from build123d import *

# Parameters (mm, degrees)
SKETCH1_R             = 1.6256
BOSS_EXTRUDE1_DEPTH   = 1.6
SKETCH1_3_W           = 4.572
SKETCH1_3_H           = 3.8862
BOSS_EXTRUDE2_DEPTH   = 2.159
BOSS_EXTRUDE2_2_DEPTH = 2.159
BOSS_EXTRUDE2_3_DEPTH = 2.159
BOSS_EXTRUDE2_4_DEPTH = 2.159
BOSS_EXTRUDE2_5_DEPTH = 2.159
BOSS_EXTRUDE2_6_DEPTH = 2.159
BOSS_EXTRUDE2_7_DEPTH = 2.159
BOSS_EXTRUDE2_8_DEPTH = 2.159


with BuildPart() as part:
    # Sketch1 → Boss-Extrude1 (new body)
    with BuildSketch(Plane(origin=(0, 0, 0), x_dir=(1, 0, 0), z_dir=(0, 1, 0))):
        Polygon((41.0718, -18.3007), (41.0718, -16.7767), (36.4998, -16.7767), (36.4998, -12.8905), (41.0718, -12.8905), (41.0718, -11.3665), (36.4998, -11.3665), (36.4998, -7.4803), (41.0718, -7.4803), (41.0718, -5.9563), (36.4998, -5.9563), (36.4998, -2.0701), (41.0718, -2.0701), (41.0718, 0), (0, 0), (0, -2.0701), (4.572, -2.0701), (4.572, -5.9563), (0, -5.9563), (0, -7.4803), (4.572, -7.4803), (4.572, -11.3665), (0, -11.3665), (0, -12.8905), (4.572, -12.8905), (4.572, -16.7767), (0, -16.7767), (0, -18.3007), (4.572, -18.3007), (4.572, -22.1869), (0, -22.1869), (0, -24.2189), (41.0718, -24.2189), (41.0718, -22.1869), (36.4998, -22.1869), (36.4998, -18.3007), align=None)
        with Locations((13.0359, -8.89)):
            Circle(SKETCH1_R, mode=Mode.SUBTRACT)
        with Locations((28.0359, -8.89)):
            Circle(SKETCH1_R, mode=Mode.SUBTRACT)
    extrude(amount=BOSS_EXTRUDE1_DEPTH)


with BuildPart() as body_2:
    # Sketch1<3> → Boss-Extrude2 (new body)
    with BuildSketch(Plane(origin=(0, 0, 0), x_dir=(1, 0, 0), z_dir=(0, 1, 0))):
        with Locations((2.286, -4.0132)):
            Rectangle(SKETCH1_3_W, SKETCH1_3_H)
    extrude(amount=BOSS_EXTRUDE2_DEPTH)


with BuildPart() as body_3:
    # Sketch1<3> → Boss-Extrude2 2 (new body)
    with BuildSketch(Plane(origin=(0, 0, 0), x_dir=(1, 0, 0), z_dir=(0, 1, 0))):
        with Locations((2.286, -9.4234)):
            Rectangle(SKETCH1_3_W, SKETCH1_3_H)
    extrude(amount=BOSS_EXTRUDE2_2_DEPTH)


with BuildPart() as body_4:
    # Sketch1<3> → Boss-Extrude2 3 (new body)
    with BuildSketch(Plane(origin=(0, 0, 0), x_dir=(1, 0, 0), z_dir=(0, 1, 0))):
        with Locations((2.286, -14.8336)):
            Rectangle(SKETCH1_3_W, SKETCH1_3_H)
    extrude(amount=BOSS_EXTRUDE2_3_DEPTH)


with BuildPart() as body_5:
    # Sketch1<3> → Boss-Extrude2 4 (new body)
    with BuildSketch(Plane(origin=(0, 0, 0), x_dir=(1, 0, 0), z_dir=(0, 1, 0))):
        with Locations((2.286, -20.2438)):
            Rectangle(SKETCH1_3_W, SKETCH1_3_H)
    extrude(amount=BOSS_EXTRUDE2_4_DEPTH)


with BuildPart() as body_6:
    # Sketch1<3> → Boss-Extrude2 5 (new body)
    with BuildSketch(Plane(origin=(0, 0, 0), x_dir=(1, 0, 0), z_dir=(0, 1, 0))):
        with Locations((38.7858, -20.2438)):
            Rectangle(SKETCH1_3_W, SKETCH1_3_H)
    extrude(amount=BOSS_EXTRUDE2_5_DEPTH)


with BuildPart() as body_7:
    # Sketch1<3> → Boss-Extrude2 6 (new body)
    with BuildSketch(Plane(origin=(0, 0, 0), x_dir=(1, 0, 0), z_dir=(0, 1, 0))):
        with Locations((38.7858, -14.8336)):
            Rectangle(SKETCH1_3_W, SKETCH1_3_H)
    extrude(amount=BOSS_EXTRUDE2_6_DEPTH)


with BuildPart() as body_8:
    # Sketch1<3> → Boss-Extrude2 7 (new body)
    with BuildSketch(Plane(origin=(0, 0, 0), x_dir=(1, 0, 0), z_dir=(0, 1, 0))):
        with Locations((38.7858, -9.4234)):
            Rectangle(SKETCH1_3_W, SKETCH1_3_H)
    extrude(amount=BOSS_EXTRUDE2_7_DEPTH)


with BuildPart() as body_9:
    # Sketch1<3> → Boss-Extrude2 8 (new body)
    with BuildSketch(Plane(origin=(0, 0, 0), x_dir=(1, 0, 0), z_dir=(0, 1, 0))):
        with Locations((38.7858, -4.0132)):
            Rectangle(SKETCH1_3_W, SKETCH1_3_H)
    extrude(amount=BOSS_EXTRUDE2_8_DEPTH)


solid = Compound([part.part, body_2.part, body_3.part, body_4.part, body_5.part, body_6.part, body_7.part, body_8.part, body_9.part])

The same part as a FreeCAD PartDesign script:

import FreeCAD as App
import Part
import Sketcher
Q = App.Units.Quantity

doc = App.newDocument("Part")
body = doc.addObject("PartDesign::Body", "Body")

# Sketch on XZ plane
sketch1 = body.newObject("Sketcher::SketchObject", "Sketch")
sketch1.AttachmentSupport = (doc.getObject("XZ_Plane"), [""])
sketch1.MapMode = "FlatFace"
sketch1.addGeometry([
    Part.LineSegment(App.Vector(41.0718, 18.3007, 0), App.Vector(41.0718, 16.7767, 0)),  # 0
    Part.LineSegment(App.Vector(41.0718, 16.7767, 0), App.Vector(36.4998, 16.7767, 0)),  # 1
    Part.LineSegment(App.Vector(36.4998, 16.7767, 0), App.Vector(36.4998, 12.8905, 0)),  # 2
    Part.LineSegment(App.Vector(36.4998, 12.8905, 0), App.Vector(41.0718, 12.8905, 0)),  # 3
    Part.LineSegment(App.Vector(41.0718, 12.8905, 0), App.Vector(41.0718, 11.3665, 0)),  # 4
    Part.LineSegment(App.Vector(41.0718, 11.3665, 0), App.Vector(36.4998, 11.3665, 0)),  # 5
    Part.LineSegment(App.Vector(36.4998, 11.3665, 0), App.Vector(36.4998, 7.4803, 0)),  # 6
    Part.LineSegment(App.Vector(36.4998, 7.4803, 0), App.Vector(41.0718, 7.4803, 0)),  # 7
    Part.LineSegment(App.Vector(41.0718, 7.4803, 0), App.Vector(41.0718, 5.9563, 0)),  # 8
    Part.LineSegment(App.Vector(41.0718, 5.9563, 0), App.Vector(36.4998, 5.9563, 0)),  # 9
    Part.LineSegment(App.Vector(36.4998, 5.9563, 0), App.Vector(36.4998, 2.0701, 0)),  # 10
    Part.LineSegment(App.Vector(36.4998, 2.0701, 0), App.Vector(41.0718, 2.0701, 0)),  # 11
    Part.LineSegment(App.Vector(41.0718, 2.0701, 0), App.Vector(41.0718, 0, 0)),  # 12
    Part.LineSegment(App.Vector(41.0718, 0, 0), App.Vector(0, 0, 0)),  # 13
    Part.LineSegment(App.Vector(0, 0, 0), App.Vector(0, 2.0701, 0)),  # 14
    Part.LineSegment(App.Vector(0, 2.0701, 0), App.Vector(4.572, 2.0701, 0)),  # 15
    Part.LineSegment(App.Vector(4.572, 2.0701, 0), App.Vector(4.572, 5.9563, 0)),  # 16
    Part.LineSegment(App.Vector(4.572, 5.9563, 0), App.Vector(0, 5.9563, 0)),  # 17
    Part.LineSegment(App.Vector(0, 5.9563, 0), App.Vector(0, 7.4803, 0)),  # 18
    Part.LineSegment(App.Vector(0, 7.4803, 0), App.Vector(4.572, 7.4803, 0)),  # 19
    Part.LineSegment(App.Vector(4.572, 7.4803, 0), App.Vector(4.572, 11.3665, 0)),  # 20
    Part.LineSegment(App.Vector(4.572, 11.3665, 0), App.Vector(0, 11.3665, 0)),  # 21
    Part.LineSegment(App.Vector(0, 11.3665, 0), App.Vector(0, 12.8905, 0)),  # 22
    Part.LineSegment(App.Vector(0, 12.8905, 0), App.Vector(4.572, 12.8905, 0)),  # 23
    Part.LineSegment(App.Vector(4.572, 12.8905, 0), App.Vector(4.572, 16.7767, 0)),  # 24
    Part.LineSegment(App.Vector(4.572, 16.7767, 0), App.Vector(0, 16.7767, 0)),  # 25
    Part.LineSegment(App.Vector(0, 16.7767, 0), App.Vector(0, 18.3007, 0)),  # 26
    Part.LineSegment(App.Vector(0, 18.3007, 0), App.Vector(4.572, 18.3007, 0)),  # 27
    Part.LineSegment(App.Vector(4.572, 18.3007, 0), App.Vector(4.572, 22.1869, 0)),  # 28
    Part.LineSegment(App.Vector(4.572, 22.1869, 0), App.Vector(0, 22.1869, 0)),  # 29
    Part.LineSegment(App.Vector(0, 22.1869, 0), App.Vector(0, 24.2189, 0)),  # 30
    Part.LineSegment(App.Vector(0, 24.2189, 0), App.Vector(41.0718, 24.2189, 0)),  # 31
    Part.LineSegment(App.Vector(41.0718, 24.2189, 0), App.Vector(41.0718, 22.1869, 0)),  # 32
    Part.LineSegment(App.Vector(41.0718, 22.1869, 0), App.Vector(36.4998, 22.1869, 0)),  # 33
    Part.LineSegment(App.Vector(36.4998, 22.1869, 0), App.Vector(36.4998, 18.3007, 0)),  # 34
    Part.LineSegment(App.Vector(36.4998, 18.3007, 0), App.Vector(41.0718, 18.3007, 0)),  # 35
    Part.Circle(App.Vector(13.0359, 8.89, 0), App.Vector(0, 0, 1), 1.6256),  # 36
    Part.Circle(App.Vector(28.0359, 8.89, 0), App.Vector(0, 0, 1), 1.6256),  # 37
], False)
sketch1.addConstraint([
    Sketcher.Constraint("Coincident", 0, 2, 1, 1),
    Sketcher.Constraint("Coincident", 1, 2, 2, 1),
    Sketcher.Constraint("Coincident", 2, 2, 3, 1),
    Sketcher.Constraint("Coincident", 3, 2, 4, 1),
    Sketcher.Constraint("Coincident", 4, 2, 5, 1),
    Sketcher.Constraint("Coincident", 5, 2, 6, 1),
    Sketcher.Constraint("Coincident", 6, 2, 7, 1),
    Sketcher.Constraint("Coincident", 7, 2, 8, 1),
    Sketcher.Constraint("Coincident", 8, 2, 9, 1),
    Sketcher.Constraint("Coincident", 9, 2, 10, 1),
    Sketcher.Constraint("Coincident", 10, 2, 11, 1),
    Sketcher.Constraint("Coincident", 11, 2, 12, 1),
    Sketcher.Constraint("Coincident", 12, 2, 13, 1),
    Sketcher.Constraint("Coincident", 13, 2, 14, 1),
    Sketcher.Constraint("Coincident", 14, 2, 15, 1),
    Sketcher.Constraint("Coincident", 15, 2, 16, 1),
    Sketcher.Constraint("Coincident", 16, 2, 17, 1),
    Sketcher.Constraint("Coincident", 17, 2, 18, 1),
    Sketcher.Constraint("Coincident", 18, 2, 19, 1),
    Sketcher.Constraint("Coincident", 19, 2, 20, 1),
    Sketcher.Constraint("Coincident", 20, 2, 21, 1),
    Sketcher.Constraint("Coincident", 21, 2, 22, 1),
    Sketcher.Constraint("Coincident", 22, 2, 23, 1),
    Sketcher.Constraint("Coincident", 23, 2, 24, 1),
    Sketcher.Constraint("Coincident", 24, 2, 25, 1),
    Sketcher.Constraint("Coincident", 25, 2, 26, 1),
    Sketcher.Constraint("Coincident", 26, 2, 27, 1),
    Sketcher.Constraint("Coincident", 27, 2, 28, 1),
    Sketcher.Constraint("Coincident", 28, 2, 29, 1),
    Sketcher.Constraint("Coincident", 29, 2, 30, 1),
    Sketcher.Constraint("Coincident", 30, 2, 31, 1),
    Sketcher.Constraint("Coincident", 31, 2, 32, 1),
    Sketcher.Constraint("Coincident", 32, 2, 33, 1),
    Sketcher.Constraint("Coincident", 33, 2, 34, 1),
    Sketcher.Constraint("Coincident", 34, 2, 35, 1),
    Sketcher.Constraint("Coincident", 35, 2, 0, 1),
    Sketcher.Constraint("Vertical", 0),
    Sketcher.Constraint("Horizontal", 1),
    Sketcher.Constraint("Vertical", 2),
    Sketcher.Constraint("Horizontal", 3),
    Sketcher.Constraint("Vertical", 4),
    Sketcher.Constraint("Horizontal", 5),
    Sketcher.Constraint("Vertical", 6),
    Sketcher.Constraint("Horizontal", 7),
    Sketcher.Constraint("Vertical", 8),
    Sketcher.Constraint("Horizontal", 9),
    Sketcher.Constraint("Vertical", 10),
    Sketcher.Constraint("Horizontal", 11),
    Sketcher.Constraint("Vertical", 12),
    Sketcher.Constraint("Horizontal", 13),
    Sketcher.Constraint("Vertical", 14),
    Sketcher.Constraint("Horizontal", 15),
    Sketcher.Constraint("Vertical", 16),
    Sketcher.Constraint("Horizontal", 17),
    Sketcher.Constraint("Vertical", 18),
    Sketcher.Constraint("Horizontal", 19),
    Sketcher.Constraint("Vertical", 20),
    Sketcher.Constraint("Horizontal", 21),
    Sketcher.Constraint("Vertical", 22),
    Sketcher.Constraint("Horizontal", 23),
    Sketcher.Constraint("Vertical", 24),
    Sketcher.Constraint("Horizontal", 25),
    Sketcher.Constraint("Vertical", 26),
    Sketcher.Constraint("Horizontal", 27),
    Sketcher.Constraint("Vertical", 28),
    Sketcher.Constraint("Horizontal", 29),
    Sketcher.Constraint("Vertical", 30),
    Sketcher.Constraint("Horizontal", 31),
    Sketcher.Constraint("Vertical", 32),
    Sketcher.Constraint("Horizontal", 33),
    Sketcher.Constraint("Vertical", 34),
    Sketcher.Constraint("Horizontal", 35),
    Sketcher.Constraint("Coincident", 13, 2, -1, 1),
    Sketcher.Constraint("Equal", 36, 37),
    Sketcher.Constraint("PointOnObject", 17, 2, -2),
    Sketcher.Constraint("PointOnObject", 21, 2, -2),
    Sketcher.Constraint("PointOnObject", 25, 2, -2),
    Sketcher.Constraint("PointOnObject", 29, 2, -2),
    Sketcher.Constraint("Horizontal", 36, 3, 37, 3),
    Sketcher.Constraint("Horizontal", 11, 2, 14, 2),
    Sketcher.Constraint("Horizontal", 9, 2, 16, 2),
    Sketcher.Constraint("Horizontal", 7, 2, 18, 2),
    Sketcher.Constraint("Horizontal", 5, 2, 20, 2),
    Sketcher.Constraint("Horizontal", 3, 2, 22, 2),
    Sketcher.Constraint("Horizontal", 1, 2, 24, 2),
    Sketcher.Constraint("Horizontal", 29, 2, 32, 2),
    Sketcher.Constraint("Horizontal", 27, 2, 34, 2),
    Sketcher.Constraint("Vertical", 0, 2, 3, 2),
    Sketcher.Constraint("Vertical", 2, 2, 5, 2),
    Sketcher.Constraint("Vertical", 4, 2, 7, 2),
    Sketcher.Constraint("Vertical", 6, 2, 9, 2),
    Sketcher.Constraint("Vertical", 8, 2, 11, 2),
    Sketcher.Constraint("Vertical", 16, 2, 19, 2),
    Sketcher.Constraint("Vertical", 20, 2, 23, 2),
    Sketcher.Constraint("Vertical", 24, 2, 27, 2),
    Sketcher.Constraint("Vertical", 12, 2, 31, 2),
    Sketcher.Constraint("Vertical", 10, 2, 33, 2),
    Sketcher.Constraint("Equal", 11, 15),
    Sketcher.Constraint("Equal", 0, 4),
    Sketcher.Constraint("Equal", 2, 6),
    Sketcher.Constraint("Equal", 4, 8),
    Sketcher.Constraint("Equal", 6, 10),
    Sketcher.Constraint("Equal", 24, 28),
    Sketcher.Constraint("Diameter", 36, Q("0.128 in")),
    Sketcher.Constraint("DistanceX", 1, 2, 1, 1, Q("0.18 in")),
    Sketcher.Constraint("DistanceY", 0, 2, 0, 1, Q("0.06 in")),
    Sketcher.Constraint("DistanceY", 30, 1, 30, 2, Q("0.08 in")),
    Sketcher.Constraint("DistanceX", 13, 2, 13, 1, Q("1.617 in")),
    Sketcher.Constraint("DistanceY", 2, 2, 2, 1, Q("0.153 in")),
    Sketcher.Constraint("DistanceY", -1, 1, 36, 3, Q("0.35 in")),
    Sketcher.Constraint("DistanceY", 12, 2, 12, 1, Q("0.0815 in")),
    Sketcher.Constraint("DistanceX", -1, 1, 36, 3, Q("13.0359 mm")),
    Sketcher.Constraint("DistanceX", -1, 1, 37, 3, Q("28.0359 mm")),
])
pad1 = body.newObject("PartDesign::Pad", "Pad")
pad1.Profile = sketch1
pad1.Length = 1.6
pad1.Reversed = True
body2 = doc.addObject("PartDesign::Body", "Body001")

# Sketch on XZ plane
sketch2 = body2.newObject("Sketcher::SketchObject", "Sketch001")
sketch2.AttachmentSupport = (doc.getObject("XZ_Plane001"), [""])
sketch2.MapMode = "FlatFace"
sketch2.addGeometry([
    Part.LineSegment(App.Vector(0, 2.0701, 0), App.Vector(0, 5.9563, 0)),
    Part.LineSegment(App.Vector(0, 5.9563, 0), App.Vector(4.572, 5.9563, 0)),
    Part.LineSegment(App.Vector(4.572, 5.9563, 0), App.Vector(4.572, 2.0701, 0)),
    Part.LineSegment(App.Vector(4.572, 2.0701, 0), App.Vector(0, 2.0701, 0)),
], False)
sketch2.addConstraint([
    Sketcher.Constraint("Coincident", 0, 2, 1, 1),
    Sketcher.Constraint("Coincident", 1, 2, 2, 1),
    Sketcher.Constraint("Coincident", 2, 2, 3, 1),
    Sketcher.Constraint("Coincident", 3, 2, 0, 1),
    Sketcher.Constraint("Vertical", 0),
    Sketcher.Constraint("Horizontal", 1),
    Sketcher.Constraint("Vertical", 2),
    Sketcher.Constraint("Horizontal", 3),
    Sketcher.Constraint("PointOnObject", 0, 2, -2),
    Sketcher.Constraint("DistanceX", 1, 1, 1, 2, Q("0.18 in")),
    Sketcher.Constraint("DistanceY", 0, 1, 0, 2, Q("0.153 in")),
    Sketcher.Constraint("DistanceY", -1, 1, 0, 2, Q("0.2345 in")),
])
pad2 = body2.newObject("PartDesign::Pad", "Pad001")
pad2.Profile = sketch2
pad2.Length = Q("0.085 in")
pad2.Reversed = True
body3 = doc.addObject("PartDesign::Body", "Body002")

# Sketch on XZ plane
sketch3 = body3.newObject("Sketcher::SketchObject", "Sketch002")
sketch3.AttachmentSupport = (doc.getObject("XZ_Plane002"), [""])
sketch3.MapMode = "FlatFace"
sketch3.addGeometry([
    Part.LineSegment(App.Vector(0, 7.4803, 0), App.Vector(0, 11.3665, 0)),
    Part.LineSegment(App.Vector(0, 11.3665, 0), App.Vector(4.572, 11.3665, 0)),
    Part.LineSegment(App.Vector(4.572, 11.3665, 0), App.Vector(4.572, 7.4803, 0)),
    Part.LineSegment(App.Vector(4.572, 7.4803, 0), App.Vector(0, 7.4803, 0)),
], False)
sketch3.addConstraint([
    Sketcher.Constraint("Coincident", 0, 2, 1, 1),
    Sketcher.Constraint("Coincident", 1, 2, 2, 1),
    Sketcher.Constraint("Coincident", 2, 2, 3, 1),
    Sketcher.Constraint("Coincident", 3, 2, 0, 1),
    Sketcher.Constraint("Vertical", 0),
    Sketcher.Constraint("Horizontal", 1),
    Sketcher.Constraint("Vertical", 2),
    Sketcher.Constraint("Horizontal", 3),
    Sketcher.Constraint("PointOnObject", 0, 2, -2),
    Sketcher.Constraint("DistanceX", 1, 1, 1, 2, Q("0.18 in")),
    Sketcher.Constraint("DistanceY", 0, 1, 0, 2, Q("0.153 in")),
    Sketcher.Constraint("DistanceY", -1, 1, 0, 2, Q("0.4475 in")),
])
pad3 = body3.newObject("PartDesign::Pad", "Pad002")
pad3.Profile = sketch3
pad3.Length = Q("0.085 in")
pad3.Reversed = True
body4 = doc.addObject("PartDesign::Body", "Body003")

# Sketch on XZ plane
sketch4 = body4.newObject("Sketcher::SketchObject", "Sketch003")
sketch4.AttachmentSupport = (doc.getObject("XZ_Plane003"), [""])
sketch4.MapMode = "FlatFace"
sketch4.addGeometry([
    Part.LineSegment(App.Vector(0, 12.8905, 0), App.Vector(0, 16.7767, 0)),
    Part.LineSegment(App.Vector(0, 16.7767, 0), App.Vector(4.572, 16.7767, 0)),
    Part.LineSegment(App.Vector(4.572, 16.7767, 0), App.Vector(4.572, 12.8905, 0)),
    Part.LineSegment(App.Vector(4.572, 12.8905, 0), App.Vector(0, 12.8905, 0)),
], False)
sketch4.addConstraint([
    Sketcher.Constraint("Coincident", 0, 2, 1, 1),
    Sketcher.Constraint("Coincident", 1, 2, 2, 1),
    Sketcher.Constraint("Coincident", 2, 2, 3, 1),
    Sketcher.Constraint("Coincident", 3, 2, 0, 1),
    Sketcher.Constraint("Vertical", 0),
    Sketcher.Constraint("Horizontal", 1),
    Sketcher.Constraint("Vertical", 2),
    Sketcher.Constraint("Horizontal", 3),
    Sketcher.Constraint("PointOnObject", 0, 2, -2),
    Sketcher.Constraint("DistanceX", 1, 1, 1, 2, Q("0.18 in")),
    Sketcher.Constraint("DistanceY", 0, 1, 0, 2, Q("0.153 in")),
    Sketcher.Constraint("DistanceY", -1, 1, 0, 2, Q("0.6605 in")),
])
pad4 = body4.newObject("PartDesign::Pad", "Pad003")
pad4.Profile = sketch4
pad4.Length = Q("0.085 in")
pad4.Reversed = True
body5 = doc.addObject("PartDesign::Body", "Body004")

# Sketch on XZ plane
sketch5 = body5.newObject("Sketcher::SketchObject", "Sketch004")
sketch5.AttachmentSupport = (doc.getObject("XZ_Plane004"), [""])
sketch5.MapMode = "FlatFace"
sketch5.addGeometry([
    Part.LineSegment(App.Vector(0, 18.3007, 0), App.Vector(0, 22.1869, 0)),
    Part.LineSegment(App.Vector(0, 22.1869, 0), App.Vector(4.572, 22.1869, 0)),
    Part.LineSegment(App.Vector(4.572, 22.1869, 0), App.Vector(4.572, 18.3007, 0)),
    Part.LineSegment(App.Vector(4.572, 18.3007, 0), App.Vector(0, 18.3007, 0)),
], False)
sketch5.addConstraint([
    Sketcher.Constraint("Coincident", 0, 2, 1, 1),
    Sketcher.Constraint("Coincident", 1, 2, 2, 1),
    Sketcher.Constraint("Coincident", 2, 2, 3, 1),
    Sketcher.Constraint("Coincident", 3, 2, 0, 1),
    Sketcher.Constraint("Vertical", 0),
    Sketcher.Constraint("Horizontal", 1),
    Sketcher.Constraint("Vertical", 2),
    Sketcher.Constraint("Horizontal", 3),
    Sketcher.Constraint("PointOnObject", 0, 2, -2),
    Sketcher.Constraint("DistanceX", 1, 1, 1, 2, Q("0.18 in")),
    Sketcher.Constraint("DistanceY", 0, 1, 0, 2, Q("0.153 in")),
    Sketcher.Constraint("DistanceY", -1, 1, 0, 2, Q("0.8735 in")),
])
pad5 = body5.newObject("PartDesign::Pad", "Pad004")
pad5.Profile = sketch5
pad5.Length = Q("0.085 in")
pad5.Reversed = True
body6 = doc.addObject("PartDesign::Body", "Body005")

# Sketch on XZ plane
sketch6 = body6.newObject("Sketcher::SketchObject", "Sketch005")
sketch6.AttachmentSupport = (doc.getObject("XZ_Plane005"), [""])
sketch6.MapMode = "FlatFace"
sketch6.addGeometry([
    Part.LineSegment(App.Vector(36.4998, 18.3007, 0), App.Vector(36.4998, 22.1869, 0)),
    Part.LineSegment(App.Vector(36.4998, 22.1869, 0), App.Vector(41.0718, 22.1869, 0)),
    Part.LineSegment(App.Vector(41.0718, 22.1869, 0), App.Vector(41.0718, 18.3007, 0)),
    Part.LineSegment(App.Vector(41.0718, 18.3007, 0), App.Vector(36.4998, 18.3007, 0)),
], False)
sketch6.addConstraint([
    Sketcher.Constraint("Coincident", 0, 2, 1, 1),
    Sketcher.Constraint("Coincident", 1, 2, 2, 1),
    Sketcher.Constraint("Coincident", 2, 2, 3, 1),
    Sketcher.Constraint("Coincident", 3, 2, 0, 1),
    Sketcher.Constraint("Vertical", 0),
    Sketcher.Constraint("Horizontal", 1),
    Sketcher.Constraint("Vertical", 2),
    Sketcher.Constraint("Horizontal", 3),
    Sketcher.Constraint("DistanceX", 1, 1, 1, 2, Q("0.18 in")),
    Sketcher.Constraint("DistanceY", 0, 1, 0, 2, Q("0.153 in")),
    Sketcher.Constraint("DistanceX", -1, 1, 0, 2, Q("1.437 in")),
    Sketcher.Constraint("DistanceY", -1, 1, 0, 2, Q("0.8735 in")),
])
pad6 = body6.newObject("PartDesign::Pad", "Pad005")
pad6.Profile = sketch6
pad6.Length = Q("0.085 in")
pad6.Reversed = True
body7 = doc.addObject("PartDesign::Body", "Body006")

# Sketch on XZ plane
sketch7 = body7.newObject("Sketcher::SketchObject", "Sketch006")
sketch7.AttachmentSupport = (doc.getObject("XZ_Plane006"), [""])
sketch7.MapMode = "FlatFace"
sketch7.addGeometry([
    Part.LineSegment(App.Vector(36.4998, 12.8905, 0), App.Vector(36.4998, 16.7767, 0)),
    Part.LineSegment(App.Vector(36.4998, 16.7767, 0), App.Vector(41.0718, 16.7767, 0)),
    Part.LineSegment(App.Vector(41.0718, 16.7767, 0), App.Vector(41.0718, 12.8905, 0)),
    Part.LineSegment(App.Vector(41.0718, 12.8905, 0), App.Vector(36.4998, 12.8905, 0)),
], False)
sketch7.addConstraint([
    Sketcher.Constraint("Coincident", 0, 2, 1, 1),
    Sketcher.Constraint("Coincident", 1, 2, 2, 1),
    Sketcher.Constraint("Coincident", 2, 2, 3, 1),
    Sketcher.Constraint("Coincident", 3, 2, 0, 1),
    Sketcher.Constraint("Vertical", 0),
    Sketcher.Constraint("Horizontal", 1),
    Sketcher.Constraint("Vertical", 2),
    Sketcher.Constraint("Horizontal", 3),
    Sketcher.Constraint("DistanceX", 1, 1, 1, 2, Q("0.18 in")),
    Sketcher.Constraint("DistanceY", 0, 1, 0, 2, Q("0.153 in")),
    Sketcher.Constraint("DistanceX", -1, 1, 0, 2, Q("1.437 in")),
    Sketcher.Constraint("DistanceY", -1, 1, 0, 2, Q("0.6605 in")),
])
pad7 = body7.newObject("PartDesign::Pad", "Pad006")
pad7.Profile = sketch7
pad7.Length = Q("0.085 in")
pad7.Reversed = True
body8 = doc.addObject("PartDesign::Body", "Body007")

# Sketch on XZ plane
sketch8 = body8.newObject("Sketcher::SketchObject", "Sketch007")
sketch8.AttachmentSupport = (doc.getObject("XZ_Plane007"), [""])
sketch8.MapMode = "FlatFace"
sketch8.addGeometry([
    Part.LineSegment(App.Vector(36.4998, 7.4803, 0), App.Vector(36.4998, 11.3665, 0)),
    Part.LineSegment(App.Vector(36.4998, 11.3665, 0), App.Vector(41.0718, 11.3665, 0)),
    Part.LineSegment(App.Vector(41.0718, 11.3665, 0), App.Vector(41.0718, 7.4803, 0)),
    Part.LineSegment(App.Vector(41.0718, 7.4803, 0), App.Vector(36.4998, 7.4803, 0)),
], False)
sketch8.addConstraint([
    Sketcher.Constraint("Coincident", 0, 2, 1, 1),
    Sketcher.Constraint("Coincident", 1, 2, 2, 1),
    Sketcher.Constraint("Coincident", 2, 2, 3, 1),
    Sketcher.Constraint("Coincident", 3, 2, 0, 1),
    Sketcher.Constraint("Vertical", 0),
    Sketcher.Constraint("Horizontal", 1),
    Sketcher.Constraint("Vertical", 2),
    Sketcher.Constraint("Horizontal", 3),
    Sketcher.Constraint("DistanceX", 1, 1, 1, 2, Q("0.18 in")),
    Sketcher.Constraint("DistanceY", 0, 1, 0, 2, Q("0.153 in")),
    Sketcher.Constraint("DistanceX", -1, 1, 0, 2, Q("1.437 in")),
    Sketcher.Constraint("DistanceY", -1, 1, 0, 2, Q("0.4475 in")),
])
pad8 = body8.newObject("PartDesign::Pad", "Pad007")
pad8.Profile = sketch8
pad8.Length = Q("0.085 in")
pad8.Reversed = True
body9 = doc.addObject("PartDesign::Body", "Body008")

# Sketch on XZ plane
sketch9 = body9.newObject("Sketcher::SketchObject", "Sketch008")
sketch9.AttachmentSupport = (doc.getObject("XZ_Plane008"), [""])
sketch9.MapMode = "FlatFace"
sketch9.addGeometry([
    Part.LineSegment(App.Vector(36.4998, 2.0701, 0), App.Vector(36.4998, 5.9563, 0)),
    Part.LineSegment(App.Vector(36.4998, 5.9563, 0), App.Vector(41.0718, 5.9563, 0)),
    Part.LineSegment(App.Vector(41.0718, 5.9563, 0), App.Vector(41.0718, 2.0701, 0)),
    Part.LineSegment(App.Vector(41.0718, 2.0701, 0), App.Vector(36.4998, 2.0701, 0)),
], False)
sketch9.addConstraint([
    Sketcher.Constraint("Coincident", 0, 2, 1, 1),
    Sketcher.Constraint("Coincident", 1, 2, 2, 1),
    Sketcher.Constraint("Coincident", 2, 2, 3, 1),
    Sketcher.Constraint("Coincident", 3, 2, 0, 1),
    Sketcher.Constraint("Vertical", 0),
    Sketcher.Constraint("Horizontal", 1),
    Sketcher.Constraint("Vertical", 2),
    Sketcher.Constraint("Horizontal", 3),
    Sketcher.Constraint("DistanceX", 1, 1, 1, 2, Q("0.18 in")),
    Sketcher.Constraint("DistanceY", 0, 1, 0, 2, Q("0.153 in")),
    Sketcher.Constraint("DistanceX", -1, 1, 0, 2, Q("1.437 in")),
    Sketcher.Constraint("DistanceY", -1, 1, 0, 2, Q("0.2345 in")),
])
pad9 = body9.newObject("PartDesign::Pad", "Pad008")
pad9.Profile = sketch9
pad9.Length = Q("0.085 in")
pad9.Reversed = True

doc.recompute()
